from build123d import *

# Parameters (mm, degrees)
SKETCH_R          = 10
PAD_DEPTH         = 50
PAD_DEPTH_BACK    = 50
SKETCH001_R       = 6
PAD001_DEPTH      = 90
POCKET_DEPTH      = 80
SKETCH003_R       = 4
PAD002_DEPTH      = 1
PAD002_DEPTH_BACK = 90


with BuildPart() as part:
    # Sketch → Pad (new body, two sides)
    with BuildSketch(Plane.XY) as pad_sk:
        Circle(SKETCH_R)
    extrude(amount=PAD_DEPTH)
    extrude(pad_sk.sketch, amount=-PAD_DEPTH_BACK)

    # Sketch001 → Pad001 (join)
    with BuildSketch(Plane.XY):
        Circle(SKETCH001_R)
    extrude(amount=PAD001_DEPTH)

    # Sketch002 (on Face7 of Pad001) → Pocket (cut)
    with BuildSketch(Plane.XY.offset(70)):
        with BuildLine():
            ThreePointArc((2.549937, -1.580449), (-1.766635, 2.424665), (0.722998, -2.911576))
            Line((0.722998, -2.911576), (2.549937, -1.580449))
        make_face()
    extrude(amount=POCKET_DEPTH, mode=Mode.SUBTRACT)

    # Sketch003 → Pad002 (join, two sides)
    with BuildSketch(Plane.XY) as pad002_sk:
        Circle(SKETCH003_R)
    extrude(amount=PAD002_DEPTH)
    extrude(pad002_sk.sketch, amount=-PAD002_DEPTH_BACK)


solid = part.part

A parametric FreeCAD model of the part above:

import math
import FreeCAD as App
import Part
import Sketcher
from FreeCAD import Vector

doc = App.newDocument("Part")
body = doc.addObject("PartDesign::Body", "Body")

# Sketch on XY plane
sketch1 = doc.addObject("Sketcher::SketchObject", "Sketch")
body.addObject(sketch1)
sketch1.AttachmentSupport = (doc.XY_Plane, [""])
sketch1.MapMode = "FlatFace"
sketch1.addGeometry(Part.Circle(Vector(0, 0, 0), Vector(0, 0, 1), 10), False)
sketch1.addConstraint(Sketcher.Constraint("Coincident", 0, 3, -1, 1))
sketch1.addConstraint(Sketcher.Constraint("Diameter", 0, 20.0))
pad1 = doc.addObject("PartDesign::Pad", "Pad")
body.addObject(pad1)
pad1.Profile = sketch1
pad1.Type = "TwoLengths"
pad1.Length = 50
pad1.Length2 = 50

# Sketch on XY plane
sketch2 = doc.addObject("Sketcher::SketchObject", "Sketch001")
body.addObject(sketch2)
sketch2.AttachmentSupport = (doc.XY_Plane, [""])
sketch2.MapMode = "FlatFace"
sketch2.addGeometry(Part.Circle(Vector(0, 0, 0), Vector(0, 0, 1), 6), False)
sketch2.addConstraint(Sketcher.Constraint("Coincident", 0, 3, -1, 1))
sketch2.addConstraint(Sketcher.Constraint("Diameter", 0, 12.0))
pad2 = doc.addObject("PartDesign::Pad", "Pad001")
body.addObject(pad2)
pad2.Profile = sketch2
pad2.Length = 90

# Sketch on XY plane
sketch3 = doc.addObject("Sketcher::SketchObject", "Sketch002")
body.addObject(sketch3)
sketch3.AttachmentSupport = (doc.XY_Plane, [""])
sketch3.MapMode = "FlatFace"
sketch3.AttachmentOffset = App.Placement(Vector(0, 0, 70), App.Rotation())
sketch3.addGeometry(Part.ArcOfCircle(Part.Circle(Vector(0, 0, 0), Vector(0, 0, 1), 3), math.radians(-32), math.radians(284)), False)
sketch3.addGeometry(Part.LineSegment(Vector(0.7, -2.9, 0), Vector(2.5, -1.6, 0)), False)
sketch3.addConstraint(Sketcher.Constraint("Coincident", 0, 1, 1, 2))
sketch3.addConstraint(Sketcher.Constraint("Coincident", 1, 1, 0, 2))
sketch3.addConstraint(Sketcher.Constraint("Coincident", 0, 3, -1, 1))
sketch3.addConstraint(Sketcher.Constraint("Radius", 0, 3.0))
sketch3.addConstraint(Sketcher.Constraint("DistanceX", -1, 1, 1, 1, 0.722998))
sketch3.addConstraint(Sketcher.Constraint("DistanceY", 0, 1, -1, 1, 1.580449))
pocket1 = doc.addObject("PartDesign::Pocket", "Pocket")
body.addObject(pocket1)
pocket1.Profile = sketch3
pocket1.Length = 80
pocket1.Reversed = True

# Sketch on XY plane
sketch4 = doc.addObject("Sketcher::SketchObject", "Sketch003")
body.addObject(sketch4)
sketch4.AttachmentSupport = (doc.XY_Plane, [""])
sketch4.MapMode = "FlatFace"
sketch4.addGeometry(Part.Circle(Vector(0, 0, 0), Vector(0, 0, 1), 4), False)
sketch4.addConstraint(Sketcher.Constraint("Coincident", 0, 3, -1, 1))
sketch4.addConstraint(Sketcher.Constraint("Diameter", 0, 8.0))
pad3 = doc.addObject("PartDesign::Pad", "Pad002")
body.addObject(pad3)
pad3.Profile = sketch4
pad3.Type = "TwoLengths"
pad3.Length = 1
pad3.Length2 = 90

doc.recompute()
